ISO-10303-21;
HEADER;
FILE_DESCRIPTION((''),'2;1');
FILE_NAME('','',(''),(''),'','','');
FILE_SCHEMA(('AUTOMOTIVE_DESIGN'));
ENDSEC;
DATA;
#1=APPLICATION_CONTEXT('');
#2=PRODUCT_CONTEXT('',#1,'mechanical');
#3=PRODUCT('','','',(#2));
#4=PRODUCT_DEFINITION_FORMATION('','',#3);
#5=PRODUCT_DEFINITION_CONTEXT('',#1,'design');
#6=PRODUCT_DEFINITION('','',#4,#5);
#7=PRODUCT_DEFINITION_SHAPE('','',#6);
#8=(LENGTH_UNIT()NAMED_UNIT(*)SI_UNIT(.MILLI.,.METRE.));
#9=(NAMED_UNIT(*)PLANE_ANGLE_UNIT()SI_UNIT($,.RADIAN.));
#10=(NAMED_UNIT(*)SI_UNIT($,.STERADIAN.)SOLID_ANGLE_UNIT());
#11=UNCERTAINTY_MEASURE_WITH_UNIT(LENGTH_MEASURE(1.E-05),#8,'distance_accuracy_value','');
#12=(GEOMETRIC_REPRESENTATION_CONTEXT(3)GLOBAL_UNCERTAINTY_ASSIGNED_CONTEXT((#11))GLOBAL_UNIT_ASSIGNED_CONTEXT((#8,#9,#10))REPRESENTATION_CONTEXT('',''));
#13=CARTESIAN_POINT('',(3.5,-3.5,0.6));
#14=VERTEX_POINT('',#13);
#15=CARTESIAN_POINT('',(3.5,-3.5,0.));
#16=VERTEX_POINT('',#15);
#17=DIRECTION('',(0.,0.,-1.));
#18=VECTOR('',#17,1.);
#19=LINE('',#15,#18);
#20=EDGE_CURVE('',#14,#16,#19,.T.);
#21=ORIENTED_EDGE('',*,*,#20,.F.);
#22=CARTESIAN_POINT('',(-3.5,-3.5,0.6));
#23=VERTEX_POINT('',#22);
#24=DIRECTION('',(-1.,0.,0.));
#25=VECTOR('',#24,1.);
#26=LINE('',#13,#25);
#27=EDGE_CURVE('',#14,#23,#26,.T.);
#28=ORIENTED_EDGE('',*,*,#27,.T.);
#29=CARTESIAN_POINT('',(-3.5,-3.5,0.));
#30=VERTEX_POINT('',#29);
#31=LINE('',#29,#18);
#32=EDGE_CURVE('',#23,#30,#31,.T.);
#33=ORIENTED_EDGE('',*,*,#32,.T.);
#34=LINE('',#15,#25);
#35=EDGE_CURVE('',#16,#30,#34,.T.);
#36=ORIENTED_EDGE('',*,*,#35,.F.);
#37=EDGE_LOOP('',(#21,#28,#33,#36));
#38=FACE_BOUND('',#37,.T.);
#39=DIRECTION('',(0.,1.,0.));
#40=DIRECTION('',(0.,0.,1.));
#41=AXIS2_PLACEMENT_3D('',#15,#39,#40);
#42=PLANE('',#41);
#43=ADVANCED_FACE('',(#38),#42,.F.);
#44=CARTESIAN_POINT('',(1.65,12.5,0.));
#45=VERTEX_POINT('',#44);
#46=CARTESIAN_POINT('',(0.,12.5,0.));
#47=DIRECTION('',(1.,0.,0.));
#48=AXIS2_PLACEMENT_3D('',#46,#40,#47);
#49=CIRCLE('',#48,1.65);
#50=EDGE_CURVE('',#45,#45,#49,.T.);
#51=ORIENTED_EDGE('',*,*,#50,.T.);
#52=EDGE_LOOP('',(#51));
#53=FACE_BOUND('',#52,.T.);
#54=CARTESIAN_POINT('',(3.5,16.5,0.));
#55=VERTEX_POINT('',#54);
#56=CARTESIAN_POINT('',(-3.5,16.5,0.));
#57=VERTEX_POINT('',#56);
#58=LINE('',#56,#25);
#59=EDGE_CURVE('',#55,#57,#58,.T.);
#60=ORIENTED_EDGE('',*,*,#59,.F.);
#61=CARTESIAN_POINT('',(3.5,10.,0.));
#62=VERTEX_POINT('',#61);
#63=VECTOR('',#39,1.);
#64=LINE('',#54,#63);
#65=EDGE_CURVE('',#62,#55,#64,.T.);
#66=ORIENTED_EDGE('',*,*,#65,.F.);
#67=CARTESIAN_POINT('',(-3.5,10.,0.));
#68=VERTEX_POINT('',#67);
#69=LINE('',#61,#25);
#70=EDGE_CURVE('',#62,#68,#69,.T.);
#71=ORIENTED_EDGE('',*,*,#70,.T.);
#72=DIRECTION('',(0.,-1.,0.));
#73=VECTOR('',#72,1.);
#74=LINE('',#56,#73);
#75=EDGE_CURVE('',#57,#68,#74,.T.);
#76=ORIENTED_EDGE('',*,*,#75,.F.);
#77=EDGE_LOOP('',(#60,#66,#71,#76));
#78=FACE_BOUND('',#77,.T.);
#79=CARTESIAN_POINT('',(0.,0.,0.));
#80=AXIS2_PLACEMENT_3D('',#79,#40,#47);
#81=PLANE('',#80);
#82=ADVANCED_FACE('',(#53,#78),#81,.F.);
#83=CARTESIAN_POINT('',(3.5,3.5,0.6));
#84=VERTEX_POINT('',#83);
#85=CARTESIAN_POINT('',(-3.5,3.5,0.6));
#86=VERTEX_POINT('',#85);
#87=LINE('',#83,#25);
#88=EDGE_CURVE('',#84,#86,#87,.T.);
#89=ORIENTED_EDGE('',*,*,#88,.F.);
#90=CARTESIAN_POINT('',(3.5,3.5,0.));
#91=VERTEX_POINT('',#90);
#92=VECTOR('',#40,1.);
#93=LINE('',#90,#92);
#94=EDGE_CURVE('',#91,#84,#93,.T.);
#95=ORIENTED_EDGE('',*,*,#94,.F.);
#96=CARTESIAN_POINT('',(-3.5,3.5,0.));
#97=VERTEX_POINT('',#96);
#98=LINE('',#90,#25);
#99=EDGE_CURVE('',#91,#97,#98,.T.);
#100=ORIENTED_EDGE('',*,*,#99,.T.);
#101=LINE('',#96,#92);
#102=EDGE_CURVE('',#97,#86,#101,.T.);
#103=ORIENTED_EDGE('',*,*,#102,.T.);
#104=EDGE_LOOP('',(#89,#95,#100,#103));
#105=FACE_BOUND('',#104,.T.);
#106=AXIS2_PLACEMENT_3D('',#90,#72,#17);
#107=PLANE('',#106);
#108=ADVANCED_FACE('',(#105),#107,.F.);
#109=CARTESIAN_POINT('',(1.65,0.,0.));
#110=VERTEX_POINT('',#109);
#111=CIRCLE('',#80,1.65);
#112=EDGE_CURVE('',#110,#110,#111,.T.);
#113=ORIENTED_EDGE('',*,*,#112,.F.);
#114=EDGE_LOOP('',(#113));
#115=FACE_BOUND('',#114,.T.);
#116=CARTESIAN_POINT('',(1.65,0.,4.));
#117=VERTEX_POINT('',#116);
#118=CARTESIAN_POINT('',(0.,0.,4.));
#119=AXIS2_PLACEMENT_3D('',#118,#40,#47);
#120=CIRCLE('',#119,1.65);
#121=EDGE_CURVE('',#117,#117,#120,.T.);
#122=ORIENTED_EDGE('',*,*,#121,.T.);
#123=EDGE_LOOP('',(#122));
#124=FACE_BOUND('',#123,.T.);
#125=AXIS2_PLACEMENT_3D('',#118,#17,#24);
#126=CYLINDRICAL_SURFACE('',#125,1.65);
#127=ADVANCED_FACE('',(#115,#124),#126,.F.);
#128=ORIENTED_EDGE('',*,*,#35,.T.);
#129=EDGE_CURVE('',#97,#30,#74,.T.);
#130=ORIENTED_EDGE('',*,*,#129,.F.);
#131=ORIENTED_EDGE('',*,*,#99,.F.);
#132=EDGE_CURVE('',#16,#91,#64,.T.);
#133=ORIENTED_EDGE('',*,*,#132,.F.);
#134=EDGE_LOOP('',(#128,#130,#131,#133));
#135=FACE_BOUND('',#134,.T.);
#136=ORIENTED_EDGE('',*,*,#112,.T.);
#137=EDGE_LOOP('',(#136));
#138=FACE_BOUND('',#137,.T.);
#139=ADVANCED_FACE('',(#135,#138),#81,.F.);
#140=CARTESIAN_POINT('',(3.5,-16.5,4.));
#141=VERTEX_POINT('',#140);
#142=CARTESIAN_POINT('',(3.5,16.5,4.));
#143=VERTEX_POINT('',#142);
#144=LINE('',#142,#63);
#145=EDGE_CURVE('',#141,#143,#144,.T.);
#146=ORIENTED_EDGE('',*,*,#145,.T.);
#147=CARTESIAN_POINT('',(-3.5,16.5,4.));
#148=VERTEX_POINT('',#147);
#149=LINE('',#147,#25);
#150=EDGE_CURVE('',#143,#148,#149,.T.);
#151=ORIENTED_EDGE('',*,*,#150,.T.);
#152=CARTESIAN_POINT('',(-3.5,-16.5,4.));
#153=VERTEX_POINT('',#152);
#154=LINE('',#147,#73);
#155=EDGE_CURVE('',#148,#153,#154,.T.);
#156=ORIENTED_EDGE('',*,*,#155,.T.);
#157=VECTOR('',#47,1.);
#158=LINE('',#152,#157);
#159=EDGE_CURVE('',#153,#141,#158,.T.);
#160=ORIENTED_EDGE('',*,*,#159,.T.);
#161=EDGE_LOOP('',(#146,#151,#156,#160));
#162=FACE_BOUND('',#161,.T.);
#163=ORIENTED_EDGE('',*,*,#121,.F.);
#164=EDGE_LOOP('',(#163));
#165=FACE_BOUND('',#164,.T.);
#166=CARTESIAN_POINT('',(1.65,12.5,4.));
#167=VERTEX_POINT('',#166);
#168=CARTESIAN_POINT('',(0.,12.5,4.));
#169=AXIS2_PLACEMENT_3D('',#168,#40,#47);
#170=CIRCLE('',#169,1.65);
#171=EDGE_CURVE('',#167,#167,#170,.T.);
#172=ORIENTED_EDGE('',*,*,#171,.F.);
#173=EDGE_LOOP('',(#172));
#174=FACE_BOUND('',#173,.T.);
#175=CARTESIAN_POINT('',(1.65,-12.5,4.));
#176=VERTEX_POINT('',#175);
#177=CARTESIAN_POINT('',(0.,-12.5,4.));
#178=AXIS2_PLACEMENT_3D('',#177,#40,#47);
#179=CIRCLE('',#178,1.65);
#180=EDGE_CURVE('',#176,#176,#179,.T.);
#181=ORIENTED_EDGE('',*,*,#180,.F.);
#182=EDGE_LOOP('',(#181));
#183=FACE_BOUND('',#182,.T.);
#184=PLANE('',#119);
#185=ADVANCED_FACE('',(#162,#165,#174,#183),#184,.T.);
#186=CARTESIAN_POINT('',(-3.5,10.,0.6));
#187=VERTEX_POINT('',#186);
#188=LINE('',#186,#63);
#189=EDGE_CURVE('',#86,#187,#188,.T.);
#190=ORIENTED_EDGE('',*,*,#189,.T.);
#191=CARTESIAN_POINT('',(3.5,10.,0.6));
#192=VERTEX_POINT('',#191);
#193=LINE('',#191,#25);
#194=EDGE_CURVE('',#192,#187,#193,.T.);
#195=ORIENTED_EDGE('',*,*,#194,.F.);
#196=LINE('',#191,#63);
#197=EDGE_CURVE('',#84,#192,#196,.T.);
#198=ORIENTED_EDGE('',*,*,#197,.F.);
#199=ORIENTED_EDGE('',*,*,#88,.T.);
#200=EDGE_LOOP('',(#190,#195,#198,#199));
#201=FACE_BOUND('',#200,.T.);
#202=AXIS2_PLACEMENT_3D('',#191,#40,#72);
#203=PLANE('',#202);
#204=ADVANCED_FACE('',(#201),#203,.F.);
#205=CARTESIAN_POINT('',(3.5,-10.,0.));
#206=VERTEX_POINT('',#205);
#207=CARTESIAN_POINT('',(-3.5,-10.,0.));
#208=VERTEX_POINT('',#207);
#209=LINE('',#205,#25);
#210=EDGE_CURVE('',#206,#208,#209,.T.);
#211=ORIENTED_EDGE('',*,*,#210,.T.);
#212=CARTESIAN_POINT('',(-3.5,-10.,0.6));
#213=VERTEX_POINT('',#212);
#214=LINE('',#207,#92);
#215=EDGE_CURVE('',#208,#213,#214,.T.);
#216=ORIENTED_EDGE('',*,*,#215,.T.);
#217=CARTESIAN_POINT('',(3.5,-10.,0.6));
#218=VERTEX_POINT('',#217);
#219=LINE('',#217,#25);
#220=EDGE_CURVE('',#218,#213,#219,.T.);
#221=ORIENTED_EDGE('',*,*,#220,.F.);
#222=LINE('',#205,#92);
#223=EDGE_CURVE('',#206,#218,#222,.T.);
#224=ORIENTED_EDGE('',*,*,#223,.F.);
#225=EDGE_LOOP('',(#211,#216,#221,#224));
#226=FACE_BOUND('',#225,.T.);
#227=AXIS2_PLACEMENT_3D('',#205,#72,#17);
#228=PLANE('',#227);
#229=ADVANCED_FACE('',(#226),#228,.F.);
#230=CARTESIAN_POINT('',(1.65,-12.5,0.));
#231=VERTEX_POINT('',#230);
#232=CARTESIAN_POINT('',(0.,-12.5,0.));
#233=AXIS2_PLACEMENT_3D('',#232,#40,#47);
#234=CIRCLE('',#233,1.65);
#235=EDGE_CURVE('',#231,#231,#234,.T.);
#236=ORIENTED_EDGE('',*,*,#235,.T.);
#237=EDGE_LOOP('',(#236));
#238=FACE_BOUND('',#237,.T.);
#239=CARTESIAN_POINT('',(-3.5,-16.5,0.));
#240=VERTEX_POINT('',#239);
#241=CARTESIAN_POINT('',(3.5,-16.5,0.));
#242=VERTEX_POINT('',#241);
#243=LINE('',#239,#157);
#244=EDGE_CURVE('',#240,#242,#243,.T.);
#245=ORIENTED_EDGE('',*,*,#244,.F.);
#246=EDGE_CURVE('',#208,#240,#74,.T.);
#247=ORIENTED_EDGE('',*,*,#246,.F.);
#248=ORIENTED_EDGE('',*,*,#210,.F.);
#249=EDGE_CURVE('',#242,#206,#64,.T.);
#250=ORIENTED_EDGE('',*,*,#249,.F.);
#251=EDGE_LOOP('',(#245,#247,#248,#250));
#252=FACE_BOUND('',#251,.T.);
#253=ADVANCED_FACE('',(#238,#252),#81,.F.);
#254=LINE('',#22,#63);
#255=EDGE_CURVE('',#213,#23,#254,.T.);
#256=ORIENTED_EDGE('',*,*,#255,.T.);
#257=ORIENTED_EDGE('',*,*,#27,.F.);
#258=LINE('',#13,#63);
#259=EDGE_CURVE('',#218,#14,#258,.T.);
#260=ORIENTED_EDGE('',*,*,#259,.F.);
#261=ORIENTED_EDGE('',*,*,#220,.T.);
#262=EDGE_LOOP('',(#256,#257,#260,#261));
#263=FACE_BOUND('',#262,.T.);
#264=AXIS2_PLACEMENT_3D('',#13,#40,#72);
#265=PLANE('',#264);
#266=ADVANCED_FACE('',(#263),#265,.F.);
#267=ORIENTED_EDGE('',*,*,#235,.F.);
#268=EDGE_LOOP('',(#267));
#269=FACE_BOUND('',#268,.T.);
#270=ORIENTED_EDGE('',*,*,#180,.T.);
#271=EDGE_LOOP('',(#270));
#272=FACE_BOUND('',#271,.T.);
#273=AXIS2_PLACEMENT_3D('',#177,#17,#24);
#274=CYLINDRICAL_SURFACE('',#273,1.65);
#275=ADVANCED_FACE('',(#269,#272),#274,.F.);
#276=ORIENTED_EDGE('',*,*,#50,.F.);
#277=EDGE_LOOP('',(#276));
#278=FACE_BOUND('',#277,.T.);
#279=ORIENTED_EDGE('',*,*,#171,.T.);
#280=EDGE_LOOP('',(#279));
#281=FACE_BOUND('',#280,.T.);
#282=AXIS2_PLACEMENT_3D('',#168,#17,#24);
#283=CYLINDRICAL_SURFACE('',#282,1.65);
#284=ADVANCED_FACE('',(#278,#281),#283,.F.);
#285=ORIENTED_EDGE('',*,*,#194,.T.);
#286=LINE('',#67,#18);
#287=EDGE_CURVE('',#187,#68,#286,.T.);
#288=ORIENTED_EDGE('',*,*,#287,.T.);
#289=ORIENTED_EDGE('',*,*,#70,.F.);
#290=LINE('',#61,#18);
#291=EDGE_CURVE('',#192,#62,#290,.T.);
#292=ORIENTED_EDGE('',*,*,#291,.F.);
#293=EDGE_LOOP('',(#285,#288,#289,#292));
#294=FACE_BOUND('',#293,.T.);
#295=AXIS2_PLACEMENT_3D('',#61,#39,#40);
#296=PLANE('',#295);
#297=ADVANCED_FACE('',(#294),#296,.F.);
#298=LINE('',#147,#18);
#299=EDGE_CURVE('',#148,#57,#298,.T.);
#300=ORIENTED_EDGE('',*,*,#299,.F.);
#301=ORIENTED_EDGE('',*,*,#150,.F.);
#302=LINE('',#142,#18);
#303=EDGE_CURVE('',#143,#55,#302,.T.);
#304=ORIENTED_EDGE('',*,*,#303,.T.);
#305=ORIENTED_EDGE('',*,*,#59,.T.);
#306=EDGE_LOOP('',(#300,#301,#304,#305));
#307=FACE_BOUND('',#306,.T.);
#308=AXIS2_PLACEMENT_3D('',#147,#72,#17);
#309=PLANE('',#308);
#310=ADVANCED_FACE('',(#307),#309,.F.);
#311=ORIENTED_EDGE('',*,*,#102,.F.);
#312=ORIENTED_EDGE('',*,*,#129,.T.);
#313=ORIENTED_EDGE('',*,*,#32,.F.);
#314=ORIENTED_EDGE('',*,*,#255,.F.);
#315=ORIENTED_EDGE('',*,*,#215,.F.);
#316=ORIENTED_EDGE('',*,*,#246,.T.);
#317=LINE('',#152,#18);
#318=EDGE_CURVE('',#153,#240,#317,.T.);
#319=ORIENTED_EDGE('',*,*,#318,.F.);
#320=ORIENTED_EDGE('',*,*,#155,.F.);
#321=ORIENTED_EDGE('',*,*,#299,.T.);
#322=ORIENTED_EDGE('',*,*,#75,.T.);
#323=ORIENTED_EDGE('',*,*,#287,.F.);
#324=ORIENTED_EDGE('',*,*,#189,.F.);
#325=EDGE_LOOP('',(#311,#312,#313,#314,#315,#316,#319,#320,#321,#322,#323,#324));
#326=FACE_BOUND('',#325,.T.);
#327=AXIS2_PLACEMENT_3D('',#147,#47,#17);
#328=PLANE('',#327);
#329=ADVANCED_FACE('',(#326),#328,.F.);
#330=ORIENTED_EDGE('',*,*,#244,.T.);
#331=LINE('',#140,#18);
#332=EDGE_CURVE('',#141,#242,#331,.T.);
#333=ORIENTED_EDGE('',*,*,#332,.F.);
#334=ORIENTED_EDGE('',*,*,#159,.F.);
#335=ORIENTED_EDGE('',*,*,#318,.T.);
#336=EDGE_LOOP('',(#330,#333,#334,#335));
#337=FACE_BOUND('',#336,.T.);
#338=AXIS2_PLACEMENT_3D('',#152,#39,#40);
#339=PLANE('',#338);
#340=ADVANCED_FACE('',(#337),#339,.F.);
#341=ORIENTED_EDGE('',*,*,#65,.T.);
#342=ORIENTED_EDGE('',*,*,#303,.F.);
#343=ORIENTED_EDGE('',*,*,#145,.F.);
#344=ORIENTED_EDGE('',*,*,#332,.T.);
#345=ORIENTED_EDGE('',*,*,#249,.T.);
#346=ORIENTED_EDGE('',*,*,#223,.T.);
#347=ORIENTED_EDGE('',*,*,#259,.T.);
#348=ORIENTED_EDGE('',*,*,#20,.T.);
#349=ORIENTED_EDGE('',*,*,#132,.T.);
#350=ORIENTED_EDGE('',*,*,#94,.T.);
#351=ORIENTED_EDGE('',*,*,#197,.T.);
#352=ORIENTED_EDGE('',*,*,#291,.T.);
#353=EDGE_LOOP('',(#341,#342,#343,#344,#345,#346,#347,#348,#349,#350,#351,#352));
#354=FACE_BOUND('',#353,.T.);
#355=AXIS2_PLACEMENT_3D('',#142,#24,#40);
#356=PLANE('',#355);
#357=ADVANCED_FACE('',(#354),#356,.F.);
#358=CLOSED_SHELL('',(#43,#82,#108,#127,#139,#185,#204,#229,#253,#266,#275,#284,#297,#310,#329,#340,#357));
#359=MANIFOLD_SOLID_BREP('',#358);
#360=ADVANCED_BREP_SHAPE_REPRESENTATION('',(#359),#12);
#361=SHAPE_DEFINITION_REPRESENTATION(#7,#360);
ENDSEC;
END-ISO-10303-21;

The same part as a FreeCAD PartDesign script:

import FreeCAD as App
import Part
import Sketcher

V = App.Vector
Q = App.Units.Quantity


def add_polygon(sketch, points):
    """Adds a closed chain of lines whose ends are joined by coincident constraints."""
    first, n = sketch.GeometryCount, len(points)
    for a, b in zip(points, points[1:] + points[:1]):
        sketch.addGeometry(Part.LineSegment(App.Vector(*a, 0), App.Vector(*b, 0)), False)
    for i in range(n):
        sketch.addConstraint(Sketcher.Constraint("Coincident", first + i, 2, first + (i + 1) % n, 1))

doc = App.newDocument("Part")
body = doc.addObject("PartDesign::Body", "Body")

sketch1 = doc.addObject("Sketcher::SketchObject", "Sketch")
body.addObject(sketch1)
sketch1.AttachmentSupport = (doc.XY_Plane, [""])
sketch1.MapMode = "FlatFace"
add_polygon(sketch1, [(-3.5, 16.5), (-3.5, -16.5), (3.5, -16.5), (3.5, 16.5)])
sketch1.addGeometry(Part.Circle(V(0, -12.5, 0), V(0, 0, 1), 1.65), False)
sketch1.addGeometry(Part.Circle(V(0, 0, 0), V(0, 0, 1), 1.65), False)
sketch1.addGeometry(Part.Circle(V(0, 12.5, 0), V(0, 0, 1), 1.65), False)
sketch1.addConstraint([
    Sketcher.Constraint("Vertical", 0),
    Sketcher.Constraint("Horizontal", 1),
    Sketcher.Constraint("Vertical", 2),
    Sketcher.Constraint("Horizontal", 3),
    Sketcher.Constraint("Coincident", 5, 3, -1, 1),
    Sketcher.Constraint("Equal", 4, 5),
    Sketcher.Constraint("Equal", 5, 6),
    Sketcher.Constraint("Symmetric", 4, 3, 6, 3, -1, 1),
    Sketcher.Constraint("Symmetric", 0, 2, 2, 2, -1, 1),
    Sketcher.Constraint("PointOnObject", 4, 3, -2),
    Sketcher.Constraint("Diameter", 4, Q("3.3 mm")),
    Sketcher.Constraint("DistanceX", 1, 1, 1, 2, Q("7 mm")),
    Sketcher.Constraint("DistanceY", 0, 2, 0, 1, Q("33 mm")),
    Sketcher.Constraint("DistanceY", 4, 3, 6, 3, Q("25 mm")),
])
pad1 = doc.addObject("PartDesign::Pad", "Pad")
body.addObject(pad1)
pad1.Profile = sketch1
pad1.Length = 4

sketch2 = doc.addObject("Sketcher::SketchObject", "Sketch001")
body.addObject(sketch2)
sketch2.AttachmentSupport = (doc.YZ_Plane, [""])
sketch2.MapMode = "FlatFace"
sketch2.AttachmentOffset = App.Placement(V(0, 0, -3.5), App.Rotation())
add_polygon(sketch2, [(10, 0), (3.5, 0), (3.5, 0.6), (10, 0.6)])
add_polygon(sketch2, [(-3.5, 0), (-10, 0), (-10, 0.6), (-3.5, 0.6)])
sketch2.addConstraint([
    Sketcher.Constraint("Horizontal", 0),
    Sketcher.Constraint("Vertical", 1),
    Sketcher.Constraint("Horizontal", 2),
    Sketcher.Constraint("Vertical", 3),
    Sketcher.Constraint("Horizontal", 4),
    Sketcher.Constraint("Vertical", 5),
    Sketcher.Constraint("Horizontal", 6),
    Sketcher.Constraint("Vertical", 7),
    Sketcher.Constraint("Symmetric", 3, 2, 4, 2, -1, 1),
    Sketcher.Constraint("Symmetric", 1, 2, 6, 2, -2),
    Sketcher.Constraint("PointOnObject", 0, 2, -1),
    Sketcher.Constraint("DistanceX", 0, 2, 0, 1, Q("6.5 mm")),
    Sketcher.Constraint("DistanceY", 1, 1, 1, 2, Q("0.6 mm")),
    Sketcher.Constraint("DistanceX", -1, 1, 2, 2, Q("10 mm")),
])
pocket1 = doc.addObject("PartDesign::Pocket", "Pocket")
body.addObject(pocket1)
pocket1.Profile = sketch2
pocket1.Type = "ThroughAll"
pocket1.Reversed = True

doc.recompute()
